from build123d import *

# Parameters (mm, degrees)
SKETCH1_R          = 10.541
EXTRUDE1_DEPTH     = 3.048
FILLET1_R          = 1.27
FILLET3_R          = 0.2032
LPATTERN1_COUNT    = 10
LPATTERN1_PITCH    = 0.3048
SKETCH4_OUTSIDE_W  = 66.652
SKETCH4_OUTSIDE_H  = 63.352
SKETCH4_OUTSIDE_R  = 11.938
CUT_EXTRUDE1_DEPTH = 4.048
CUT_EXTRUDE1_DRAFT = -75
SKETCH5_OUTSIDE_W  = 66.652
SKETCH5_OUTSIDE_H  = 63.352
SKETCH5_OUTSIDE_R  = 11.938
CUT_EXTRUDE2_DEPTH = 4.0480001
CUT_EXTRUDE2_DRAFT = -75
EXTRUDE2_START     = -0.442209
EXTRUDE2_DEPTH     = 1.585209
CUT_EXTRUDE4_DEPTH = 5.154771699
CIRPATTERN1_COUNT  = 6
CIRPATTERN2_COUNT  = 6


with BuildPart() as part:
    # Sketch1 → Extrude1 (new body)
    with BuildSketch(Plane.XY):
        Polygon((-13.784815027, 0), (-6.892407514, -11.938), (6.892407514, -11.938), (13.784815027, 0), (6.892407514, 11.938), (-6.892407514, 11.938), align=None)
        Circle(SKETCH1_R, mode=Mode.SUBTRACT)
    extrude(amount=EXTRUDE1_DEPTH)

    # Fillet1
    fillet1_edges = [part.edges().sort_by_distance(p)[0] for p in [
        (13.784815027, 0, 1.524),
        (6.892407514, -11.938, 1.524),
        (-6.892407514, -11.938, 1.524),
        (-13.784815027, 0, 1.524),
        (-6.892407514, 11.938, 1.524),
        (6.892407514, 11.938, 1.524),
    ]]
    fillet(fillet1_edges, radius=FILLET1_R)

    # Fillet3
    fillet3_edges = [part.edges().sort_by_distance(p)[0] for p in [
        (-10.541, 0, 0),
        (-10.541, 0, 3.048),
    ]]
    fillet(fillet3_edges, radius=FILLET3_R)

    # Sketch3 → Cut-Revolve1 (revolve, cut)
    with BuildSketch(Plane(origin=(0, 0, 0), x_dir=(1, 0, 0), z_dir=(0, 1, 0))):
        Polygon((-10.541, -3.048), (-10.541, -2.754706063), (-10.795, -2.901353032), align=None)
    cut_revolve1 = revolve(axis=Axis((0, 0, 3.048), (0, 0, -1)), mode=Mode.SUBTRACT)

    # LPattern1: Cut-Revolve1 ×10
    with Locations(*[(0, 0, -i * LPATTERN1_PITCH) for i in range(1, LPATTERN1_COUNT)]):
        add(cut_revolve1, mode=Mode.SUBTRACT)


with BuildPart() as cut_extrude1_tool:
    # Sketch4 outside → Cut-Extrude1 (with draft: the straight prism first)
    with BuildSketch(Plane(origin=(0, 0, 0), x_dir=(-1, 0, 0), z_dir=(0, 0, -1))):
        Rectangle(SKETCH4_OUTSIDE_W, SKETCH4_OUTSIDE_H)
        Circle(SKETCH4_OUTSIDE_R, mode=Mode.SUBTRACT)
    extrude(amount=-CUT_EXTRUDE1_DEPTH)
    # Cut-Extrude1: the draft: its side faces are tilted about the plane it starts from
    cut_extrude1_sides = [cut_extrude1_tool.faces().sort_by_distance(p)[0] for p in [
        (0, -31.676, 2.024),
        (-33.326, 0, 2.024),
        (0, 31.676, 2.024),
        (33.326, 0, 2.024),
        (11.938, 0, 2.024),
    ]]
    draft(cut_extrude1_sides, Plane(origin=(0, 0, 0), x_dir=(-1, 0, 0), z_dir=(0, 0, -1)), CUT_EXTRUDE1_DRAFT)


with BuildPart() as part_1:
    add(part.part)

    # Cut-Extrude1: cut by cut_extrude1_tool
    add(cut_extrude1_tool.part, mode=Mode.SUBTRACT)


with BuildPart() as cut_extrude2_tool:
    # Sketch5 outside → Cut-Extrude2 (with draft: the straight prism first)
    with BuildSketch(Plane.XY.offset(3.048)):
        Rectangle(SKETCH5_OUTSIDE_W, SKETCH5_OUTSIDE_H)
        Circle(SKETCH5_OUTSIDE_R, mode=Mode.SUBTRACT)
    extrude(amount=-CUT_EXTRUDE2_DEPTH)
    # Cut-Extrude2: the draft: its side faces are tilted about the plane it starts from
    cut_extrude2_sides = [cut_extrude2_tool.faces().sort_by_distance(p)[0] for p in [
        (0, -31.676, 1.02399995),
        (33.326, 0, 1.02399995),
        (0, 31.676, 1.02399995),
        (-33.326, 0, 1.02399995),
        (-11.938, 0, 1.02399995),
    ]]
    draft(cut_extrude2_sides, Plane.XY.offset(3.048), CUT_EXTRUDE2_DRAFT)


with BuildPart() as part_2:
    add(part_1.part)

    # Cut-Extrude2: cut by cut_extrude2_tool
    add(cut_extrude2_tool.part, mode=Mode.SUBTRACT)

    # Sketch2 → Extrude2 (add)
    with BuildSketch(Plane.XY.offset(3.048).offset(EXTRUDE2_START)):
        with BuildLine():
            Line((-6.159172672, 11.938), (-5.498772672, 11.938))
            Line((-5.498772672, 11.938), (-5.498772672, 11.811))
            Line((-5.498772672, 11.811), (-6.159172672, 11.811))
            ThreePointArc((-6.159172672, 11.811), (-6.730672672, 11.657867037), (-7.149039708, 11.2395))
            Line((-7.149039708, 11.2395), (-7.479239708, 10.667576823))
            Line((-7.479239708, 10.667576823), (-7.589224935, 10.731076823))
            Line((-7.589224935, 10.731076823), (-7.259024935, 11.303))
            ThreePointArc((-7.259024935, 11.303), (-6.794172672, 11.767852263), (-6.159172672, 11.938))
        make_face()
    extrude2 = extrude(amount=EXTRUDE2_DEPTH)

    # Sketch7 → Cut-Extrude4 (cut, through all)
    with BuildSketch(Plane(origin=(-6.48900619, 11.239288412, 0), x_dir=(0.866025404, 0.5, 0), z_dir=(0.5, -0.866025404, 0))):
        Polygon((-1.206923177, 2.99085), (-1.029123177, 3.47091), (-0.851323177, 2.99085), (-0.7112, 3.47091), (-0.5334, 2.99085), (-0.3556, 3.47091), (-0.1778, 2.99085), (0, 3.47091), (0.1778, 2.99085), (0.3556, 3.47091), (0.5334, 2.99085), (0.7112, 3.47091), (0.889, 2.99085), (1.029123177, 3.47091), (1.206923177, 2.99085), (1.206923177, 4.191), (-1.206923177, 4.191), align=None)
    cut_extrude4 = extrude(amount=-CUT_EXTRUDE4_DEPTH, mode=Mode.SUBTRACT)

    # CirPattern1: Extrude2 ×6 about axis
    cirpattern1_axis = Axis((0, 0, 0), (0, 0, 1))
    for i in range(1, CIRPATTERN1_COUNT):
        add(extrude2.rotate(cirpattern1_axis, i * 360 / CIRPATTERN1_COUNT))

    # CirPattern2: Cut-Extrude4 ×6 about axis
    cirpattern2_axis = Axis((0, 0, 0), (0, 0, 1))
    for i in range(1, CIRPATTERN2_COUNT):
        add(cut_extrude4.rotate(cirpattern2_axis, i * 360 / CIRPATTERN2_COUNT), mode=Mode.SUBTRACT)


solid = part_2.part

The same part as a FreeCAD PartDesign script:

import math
import FreeCAD as App
import Part
import Sketcher
from FreeCAD import Vector
Q = App.Units.Quantity


def edges_at(feature, points):
    """Names of the edges that pass closest to the given points."""
    edges = feature.Shape.Edges
    near = lambda p: min(range(len(edges)), key=lambda i: edges[i].distToShape(Part.Vertex(*p))[0])
    return sorted({f"Edge{near(p) + 1}" for p in points})


def faces_at(feature, points):
    """Names of the faces that lie closest to the given points."""
    faces = feature.Shape.Faces
    near = lambda p: min(range(len(faces)), key=lambda i: faces[i].distToShape(Part.Vertex(*p))[0])
    return sorted({f"Face{near(p) + 1}" for p in points})

doc = App.newDocument("Part")
body = doc.addObject("PartDesign::Body", "Body")

# Sketch on XY plane
sketch1 = body.newObject("Sketcher::SketchObject", "Sketch")
sketch1.AttachmentSupport = (doc.getObject("XY_Plane"), [""])
sketch1.MapMode = "FlatFace"
sketch1.addGeometry([
    Part.LineSegment(Vector(-14, 0, 0), Vector(-7, -12, 0)),  # 0
    Part.LineSegment(Vector(-7, -12, 0), Vector(7, -12, 0)),  # 1
    Part.LineSegment(Vector(7, -12, 0), Vector(14, 0, 0)),  # 2
    Part.LineSegment(Vector(14, 0, 0), Vector(7, 12, 0)),  # 3
    Part.LineSegment(Vector(7, 12, 0), Vector(-7, 12, 0)),  # 4
    Part.LineSegment(Vector(-7, 12, 0), Vector(-14, 0, 0)),  # 5
    Part.Circle(Vector(0, 0, 0), Vector(0, 0, 1), 11),  # 6
], False)
sketch1.addConstraint([
    Sketcher.Constraint("Coincident", 0, 2, 1, 1),
    Sketcher.Constraint("Coincident", 1, 2, 2, 1),
    Sketcher.Constraint("Coincident", 2, 2, 3, 1),
    Sketcher.Constraint("Coincident", 3, 2, 4, 1),
    Sketcher.Constraint("Coincident", 4, 2, 5, 1),
    Sketcher.Constraint("Coincident", 5, 2, 0, 1),
    Sketcher.Constraint("Horizontal", 1),
    Sketcher.Constraint("Horizontal", 4),
    Sketcher.Constraint("Coincident", 6, 3, -1, 1),
    Sketcher.Constraint("Symmetric", 0, 2, 3, 2, -1, 1),
    Sketcher.Constraint("Symmetric", 2, 2, 5, 2, -1, 1),
    Sketcher.Constraint("PointOnObject", 2, 2, -1),
    Sketcher.Constraint("Parallel", 2, 5),
    Sketcher.Constraint("Vertical", 1, 2, 3, 2),
    Sketcher.Constraint("Diameter", 6, Q("0.83 in")),
    Sketcher.Constraint("Angle", 0, Q("-60 deg")),
    Sketcher.Constraint("DistanceY", 0, 2, -1, 1, Q("0.47 in")),
    Sketcher.Constraint("DistanceX", 1, 1, 1, 2, 13.784815),
])
pad1 = body.newObject("PartDesign::Pad", "Pad")
pad1.Profile = sketch1
pad1.Length = Q("0.12 in")
doc.recompute()

fillet = body.newObject("PartDesign::Fillet", "Fillet")
fillet.Base = (pad1, edges_at(pad1, [
    (13.785, 0, 1.524),
    (6.892, -11.938, 1.524),
    (-6.892, -11.938, 1.524),
    (-13.785, 0, 1.524),
    (-6.892, 11.938, 1.524),
    (6.892, 11.938, 1.524),
]))
fillet.Radius = Q("0.05 in")
doc.recompute()

fillet2 = body.newObject("PartDesign::Fillet", "Fillet001")
fillet2.Base = (fillet, edges_at(fillet, [(-10.541, 0, 0), (-10.541, 0, 3.048)]))
fillet2.Radius = Q("0.008 in")

# Sketch on XZ plane
sketch2 = body.newObject("Sketcher::SketchObject", "Sketch001")
sketch2.AttachmentSupport = (doc.getObject("XZ_Plane"), [""])
sketch2.MapMode = "FlatFace"
sketch2.addGeometry([
    Part.LineSegment(Vector(-10.54, 3.05, 0), Vector(-10.54, 2.75, 0)),
    Part.LineSegment(Vector(-10.54, 2.75, 0), Vector(-10.79, 2.9, 0)),
    Part.LineSegment(Vector(-10.79, 2.9, 0), Vector(-10.54, 3.05, 0)),
], False)
sketch2.addConstraint([
    Sketcher.Constraint("Coincident", 0, 2, 1, 1),
    Sketcher.Constraint("Coincident", 1, 2, 2, 1),
    Sketcher.Constraint("Coincident", 2, 2, 0, 1),
    Sketcher.Constraint("Vertical", 0),
    Sketcher.Constraint("Equal", 1, 2),
    Sketcher.Constraint("Angle", 1, Q("150 deg")),
    Sketcher.Constraint("DistanceY", -1, 1, 2, 2, Q("0.12 in")),
    Sketcher.Constraint("DistanceX", 1, 2, 0, 2, Q("0.01 in")),
    Sketcher.Constraint("DistanceX", 0, 2, -1, 1, Q("0.415 in")),
])
groove = body.newObject("PartDesign::Groove", "Groove")
groove.Profile = sketch2
groove.ReferenceAxis = (sketch2, ["V_Axis"])
groove.Angle = 360
doc.recompute()

linearpattern = body.newObject("PartDesign::LinearPattern", "LinearPattern")
linearpattern.Originals = [groove]
linearpattern.Direction = (doc.getObject("Z_Axis"), [""])
linearpattern.Mode = "offset"
linearpattern.Offset = Q("0.012 in")
linearpattern.Occurrences = 10
linearpattern.Reversed = True
body.Tip = linearpattern
body2 = doc.addObject("PartDesign::Body", "Body001")

# Sketch on XY plane
sketch3 = body2.newObject("Sketcher::SketchObject", "Sketch002")
sketch3.AttachmentSupport = (doc.getObject("XY_Plane001"), [""])
sketch3.MapMode = "FlatFace"
sketch3.addGeometry([
    Part.LineSegment(Vector(33, 32, 0), Vector(33, -32, 0)),  # 0
    Part.LineSegment(Vector(33, -32, 0), Vector(-33, -32, 0)),  # 1
    Part.LineSegment(Vector(-33, -32, 0), Vector(-33, 32, 0)),  # 2
    Part.LineSegment(Vector(-33, 32, 0), Vector(33, 32, 0)),  # 3
    Part.Circle(Vector(0, 0, 0), Vector(0, 0, 1), 12),  # 4
], False)
sketch3.addConstraint([
    Sketcher.Constraint("Coincident", 0, 2, 1, 1),
    Sketcher.Constraint("Coincident", 1, 2, 2, 1),
    Sketcher.Constraint("Coincident", 2, 2, 3, 1),
    Sketcher.Constraint("Coincident", 3, 2, 0, 1),
    Sketcher.Constraint("Vertical", 0),
    Sketcher.Constraint("Horizontal", 1),
    Sketcher.Constraint("Vertical", 2),
    Sketcher.Constraint("Horizontal", 3),
    Sketcher.Constraint("Coincident", 4, 3, -1, 1),
    Sketcher.Constraint("Symmetric", 0, 2, 2, 2, -1, 1),
    Sketcher.Constraint("Diameter", 4, Q("0.94 in")),
    Sketcher.Constraint("DistanceX", 1, 2, 1, 1, 66.652),
    Sketcher.Constraint("DistanceY", 0, 2, 0, 1, 63.352),
])
pad2 = body2.newObject("PartDesign::Pad", "Pad001")
pad2.Profile = sketch3
pad2.Length = 4.048
doc.recompute()

draft = body2.newObject("PartDesign::Draft", "Draft")
draft.Base = (pad2, faces_at(pad2, [
    (0, -31.676, 2.024),
    (-33.326, 0, 2.024),
    (0, 31.676, 2.024),
    (33.326, 0, 2.024),
    (11.938, 0, 2.024),
]))
draft.NeutralPlane = (doc.getObject("XY_Plane001"), [""])
draft.Angle = 75
draft.Reversed = False
doc.recompute()

boolean = body.newObject("PartDesign::Boolean", "Boolean")
boolean.Type = "Cut"
boolean.addObjects([body2])
body3 = doc.addObject("PartDesign::Body", "Body002")

# Sketch on XY plane
sketch4 = body3.newObject("Sketcher::SketchObject", "Sketch003")
sketch4.AttachmentSupport = (doc.getObject("XY_Plane002"), [""])
sketch4.MapMode = "FlatFace"
sketch4.AttachmentOffset = App.Placement(Vector(0, 0, 0.12 * 25.4), App.Rotation())
sketch4.addGeometry([
    Part.LineSegment(Vector(-33, 32, 0), Vector(-33, -32, 0)),  # 0
    Part.LineSegment(Vector(-33, -32, 0), Vector(33, -32, 0)),  # 1
    Part.LineSegment(Vector(33, -32, 0), Vector(33, 32, 0)),  # 2
    Part.LineSegment(Vector(33, 32, 0), Vector(-33, 32, 0)),  # 3
    Part.Circle(Vector(0, 0, 0), Vector(0, 0, 1), 12),  # 4
], False)
sketch4.addConstraint([
    Sketcher.Constraint("Coincident", 0, 2, 1, 1),
    Sketcher.Constraint("Coincident", 1, 2, 2, 1),
    Sketcher.Constraint("Coincident", 2, 2, 3, 1),
    Sketcher.Constraint("Coincident", 3, 2, 0, 1),
    Sketcher.Constraint("Vertical", 0),
    Sketcher.Constraint("Horizontal", 1),
    Sketcher.Constraint("Vertical", 2),
    Sketcher.Constraint("Horizontal", 3),
    Sketcher.Constraint("Coincident", 4, 3, -1, 1),
    Sketcher.Constraint("Symmetric", 0, 2, 2, 2, -1, 1),
    Sketcher.Constraint("Diameter", 4, Q("0.94 in")),
    Sketcher.Constraint("DistanceX", 1, 1, 1, 2, 66.652),
    Sketcher.Constraint("DistanceY", 0, 2, 0, 1, 63.352),
])
pad3 = body3.newObject("PartDesign::Pad", "Pad002")
pad3.Profile = sketch4
pad3.Length = 4.048
pad3.Reversed = True
doc.recompute()

datumplane = body3.newObject("PartDesign::Plane", "DatumPlane")
datumplane.AttachmentSupport = (doc.getObject("XY_Plane002"), [""])
datumplane.MapMode = "FlatFace"
datumplane.AttachmentOffset = App.Placement(Vector(0, 0, 0.12 * 25.4), App.Rotation())
draft2 = body3.newObject("PartDesign::Draft", "Draft001")
draft2.Base = (pad3, faces_at(pad3, [
    (0, -31.676, 1.024),
    (33.326, 0, 1.024),
    (0, 31.676, 1.024),
    (-33.326, 0, 1.024),
    (-11.938, 0, 1.024),
]))
draft2.NeutralPlane = (datumplane, [""])
draft2.Angle = 75
draft2.Reversed = True
doc.recompute()

boolean2 = body.newObject("PartDesign::Boolean", "Boolean001")
boolean2.Type = "Cut"
boolean2.addObjects([body3])

# Sketch on XY plane
sketch5 = body.newObject("Sketcher::SketchObject", "Sketch004")
sketch5.AttachmentSupport = (doc.getObject("XY_Plane"), [""])
sketch5.MapMode = "FlatFace"
sketch5.AttachmentOffset = App.Placement(Vector(0, 0, 2.605791), App.Rotation())
sketch5.addGeometry([
    Part.LineSegment(Vector(-5.5, 11.94, 0), Vector(-6.16, 11.94, 0)),  # 0
    Part.ArcOfCircle(Part.Circle(Vector(-6.16, 10.67, 0), Vector(0, 0, 1), 1.27), math.radians(90), math.radians(150)),  # 1
    Part.LineSegment(Vector(-7.26, 11.3, 0), Vector(-7.59, 10.73, 0)),  # 2
    Part.LineSegment(Vector(-7.59, 10.73, 0), Vector(-7.48, 10.67, 0)),  # 3
    Part.LineSegment(Vector(-7.48, 10.67, 0), Vector(-7.15, 11.24, 0)),  # 4
    Part.ArcOfCircle(Part.Circle(Vector(-6.16, 10.67, 0), Vector(0, 0, 1), 1.14), math.radians(90), math.radians(150)),  # 5
    Part.LineSegment(Vector(-6.16, 11.81, 0), Vector(-5.5, 11.81, 0)),  # 6
    Part.LineSegment(Vector(-5.5, 11.81, 0), Vector(-5.5, 11.94, 0)),  # 7
], False)
sketch5.addConstraint([
    Sketcher.Constraint("Tangent", 0, 2, 1, 1),
    Sketcher.Constraint("Tangent", 1, 2, 2, 1),
    Sketcher.Constraint("Coincident", 2, 2, 3, 1),
    Sketcher.Constraint("Coincident", 3, 2, 4, 1),
    Sketcher.Constraint("Tangent", 4, 2, 5, 2),
    Sketcher.Constraint("Tangent", 5, 1, 6, 1),
    Sketcher.Constraint("Coincident", 6, 2, 7, 1),
    Sketcher.Constraint("Coincident", 7, 2, 0, 1),
    Sketcher.Constraint("Horizontal", 0),
    Sketcher.Constraint("Horizontal", 6),
    Sketcher.Constraint("Vertical", 7),
    Sketcher.Constraint("Coincident", 5, 3, 1, 3),
    Sketcher.Constraint("Perpendicular", 2, 3),
    Sketcher.Constraint("Perpendicular", 3, 4),
    Sketcher.Constraint("Radius", 1, Q("0.05 in")),
    Sketcher.Constraint("Angle", 2, Q("-120 deg")),
    Sketcher.Constraint("Radius", 5, Q("0.045 in")),
    Sketcher.Constraint("DistanceX", 0, 2, 0, 1, Q("0.026 in")),
    Sketcher.Constraint("DistanceY", -1, 1, 1, 3, Q("0.42 in")),
    Sketcher.Constraint("Distance", 2, Q("0.026 in")),
    Sketcher.Constraint("DistanceX", 3, 2, -1, 1, 7.47924),
])
pad4 = body.newObject("PartDesign::Pad", "Pad003")
pad4.Profile = sketch5
pad4.Length = 1.585209

# Sketch on an angled plane
sketch6 = body.newObject("Sketcher::SketchObject", "Sketch005")
sketch6.Placement = App.Placement(Vector(-6.489006, 11.239288, 0), App.Rotation(Vector(0.866025404, 0.5, 0), Vector(0, 0, 1), Vector(0.5, -0.866025404, 0), "ZXY"))
sketch6.addGeometry([
    Part.LineSegment(Vector(-1.2, 3, 0), Vector(-1, 3.5, 0)),  # 0
    Part.LineSegment(Vector(-1, 3.5, 0), Vector(-0.9, 3, 0)),  # 1
    Part.LineSegment(Vector(-0.9, 3, 0), Vector(-0.7, 3.5, 0)),  # 2
    Part.LineSegment(Vector(-0.7, 3.5, 0), Vector(-0.5, 3, 0)),  # 3
    Part.LineSegment(Vector(-0.5, 3, 0), Vector(-0.4, 3.5, 0)),  # 4
    Part.LineSegment(Vector(-0.4, 3.5, 0), Vector(-0.2, 3, 0)),  # 5
    Part.LineSegment(Vector(-0.2, 3, 0), Vector(0, 3.5, 0)),  # 6
    Part.LineSegment(Vector(0, 3.5, 0), Vector(0.2, 3, 0)),  # 7
    Part.LineSegment(Vector(0.2, 3, 0), Vector(0.4, 3.5, 0)),  # 8
    Part.LineSegment(Vector(0.4, 3.5, 0), Vector(0.5, 3, 0)),  # 9
    Part.LineSegment(Vector(0.5, 3, 0), Vector(0.7, 3.5, 0)),  # 10
    Part.LineSegment(Vector(0.7, 3.5, 0), Vector(0.9, 3, 0)),  # 11
    Part.LineSegment(Vector(0.9, 3, 0), Vector(1, 3.5, 0)),  # 12
    Part.LineSegment(Vector(1, 3.5, 0), Vector(1.2, 3, 0)),  # 13
    Part.LineSegment(Vector(1.2, 3, 0), Vector(1.2, 4.2, 0)),  # 14
    Part.LineSegment(Vector(1.2, 4.2, 0), Vector(-1.2, 4.2, 0)),  # 15
    Part.LineSegment(Vector(-1.2, 4.2, 0), Vector(-1.2, 3, 0)),  # 16
], False)
sketch6.addConstraint([
    Sketcher.Constraint("Coincident", 0, 2, 1, 1),
    Sketcher.Constraint("Coincident", 1, 2, 2, 1),
    Sketcher.Constraint("Coincident", 2, 2, 3, 1),
    Sketcher.Constraint("Coincident", 3, 2, 4, 1),
    Sketcher.Constraint("Coincident", 4, 2, 5, 1),
    Sketcher.Constraint("Coincident", 5, 2, 6, 1),
    Sketcher.Constraint("Coincident", 6, 2, 7, 1),
    Sketcher.Constraint("Coincident", 7, 2, 8, 1),
    Sketcher.Constraint("Coincident", 8, 2, 9, 1),
    Sketcher.Constraint("Coincident", 9, 2, 10, 1),
    Sketcher.Constraint("Coincident", 10, 2, 11, 1),
    Sketcher.Constraint("Coincident", 11, 2, 12, 1),
    Sketcher.Constraint("Coincident", 12, 2, 13, 1),
    Sketcher.Constraint("Coincident", 13, 2, 14, 1),
    Sketcher.Constraint("Coincident", 14, 2, 15, 1),
    Sketcher.Constraint("Coincident", 15, 2, 16, 1),
    Sketcher.Constraint("Coincident", 16, 2, 0, 1),
    Sketcher.Constraint("Vertical", 14),
    Sketcher.Constraint("Horizontal", 15),
    Sketcher.Constraint("Vertical", 16),
    Sketcher.Constraint("Symmetric", 5, 2, 7, 2, -2),
    Sketcher.Constraint("Symmetric", 4, 2, 8, 2, -2),
    Sketcher.Constraint("Symmetric", 3, 2, 9, 2, -2),
    Sketcher.Constraint("Symmetric", 2, 2, 10, 2, -2),
    Sketcher.Constraint("Symmetric", 0, 2, 12, 2, -2),
    Sketcher.Constraint("Symmetric", 13, 2, 16, 2, -2),
    Sketcher.Constraint("PointOnObject", 6, 2, -2),
    Sketcher.Constraint("Parallel", 1, 3),
    Sketcher.Constraint("Parallel", 0, 4),
    Sketcher.Constraint("Parallel", 3, 5),
    Sketcher.Constraint("Parallel", 4, 6),
    Sketcher.Constraint("Parallel", 5, 7),
    Sketcher.Constraint("Parallel", 9, 11),
    Sketcher.Constraint("Parallel", 2, 12),
    Sketcher.Constraint("Horizontal", 0, 2, 2, 2),
    Sketcher.Constraint("Horizontal", 1, 2, 3, 2),
    Sketcher.Constraint("Horizontal", 2, 2, 4, 2),
    Sketcher.Constraint("Horizontal", 3, 2, 5, 2),
    Sketcher.Constraint("Horizontal", 4, 2, 6, 2),
    Sketcher.Constraint("Horizontal", 11, 2, 13, 2),
    Sketcher.Constraint("DistanceX", 2, 2, -1, 1, Q("0.028 in")),
    Sketcher.Constraint("DistanceY", -1, 1, 14, 2, Q("0.165 in")),
    Sketcher.Constraint("DistanceY", 1, 2, 0, 2, Q("0.0189 in")),
    Sketcher.Constraint("DistanceY", 14, 1, 14, 2, 1.20015),
    Sketcher.Constraint("DistanceX", 15, 2, 15, 1, 2.413846),
])
pocket1 = body.newObject("PartDesign::Pocket", "Pocket")
pocket1.Profile = sketch6
pocket1.Type = "ThroughAll"
doc.recompute()

polarpattern = body.newObject("PartDesign::PolarPattern", "PolarPattern")
polarpattern.Originals = [pad4]
polarpattern.Axis = (doc.getObject("Z_Axis"), [""])
polarpattern.Angle = 360
polarpattern.Occurrences = 6
body.Tip = polarpattern
doc.recompute()

polarpattern2 = body.newObject("PartDesign::PolarPattern", "PolarPattern001")
polarpattern2.Originals = [pocket1]
polarpattern2.Axis = (doc.getObject("Z_Axis"), [""])
polarpattern2.Angle = 360
polarpattern2.Occurrences = 6
body.Tip = polarpattern2

doc.recompute()
